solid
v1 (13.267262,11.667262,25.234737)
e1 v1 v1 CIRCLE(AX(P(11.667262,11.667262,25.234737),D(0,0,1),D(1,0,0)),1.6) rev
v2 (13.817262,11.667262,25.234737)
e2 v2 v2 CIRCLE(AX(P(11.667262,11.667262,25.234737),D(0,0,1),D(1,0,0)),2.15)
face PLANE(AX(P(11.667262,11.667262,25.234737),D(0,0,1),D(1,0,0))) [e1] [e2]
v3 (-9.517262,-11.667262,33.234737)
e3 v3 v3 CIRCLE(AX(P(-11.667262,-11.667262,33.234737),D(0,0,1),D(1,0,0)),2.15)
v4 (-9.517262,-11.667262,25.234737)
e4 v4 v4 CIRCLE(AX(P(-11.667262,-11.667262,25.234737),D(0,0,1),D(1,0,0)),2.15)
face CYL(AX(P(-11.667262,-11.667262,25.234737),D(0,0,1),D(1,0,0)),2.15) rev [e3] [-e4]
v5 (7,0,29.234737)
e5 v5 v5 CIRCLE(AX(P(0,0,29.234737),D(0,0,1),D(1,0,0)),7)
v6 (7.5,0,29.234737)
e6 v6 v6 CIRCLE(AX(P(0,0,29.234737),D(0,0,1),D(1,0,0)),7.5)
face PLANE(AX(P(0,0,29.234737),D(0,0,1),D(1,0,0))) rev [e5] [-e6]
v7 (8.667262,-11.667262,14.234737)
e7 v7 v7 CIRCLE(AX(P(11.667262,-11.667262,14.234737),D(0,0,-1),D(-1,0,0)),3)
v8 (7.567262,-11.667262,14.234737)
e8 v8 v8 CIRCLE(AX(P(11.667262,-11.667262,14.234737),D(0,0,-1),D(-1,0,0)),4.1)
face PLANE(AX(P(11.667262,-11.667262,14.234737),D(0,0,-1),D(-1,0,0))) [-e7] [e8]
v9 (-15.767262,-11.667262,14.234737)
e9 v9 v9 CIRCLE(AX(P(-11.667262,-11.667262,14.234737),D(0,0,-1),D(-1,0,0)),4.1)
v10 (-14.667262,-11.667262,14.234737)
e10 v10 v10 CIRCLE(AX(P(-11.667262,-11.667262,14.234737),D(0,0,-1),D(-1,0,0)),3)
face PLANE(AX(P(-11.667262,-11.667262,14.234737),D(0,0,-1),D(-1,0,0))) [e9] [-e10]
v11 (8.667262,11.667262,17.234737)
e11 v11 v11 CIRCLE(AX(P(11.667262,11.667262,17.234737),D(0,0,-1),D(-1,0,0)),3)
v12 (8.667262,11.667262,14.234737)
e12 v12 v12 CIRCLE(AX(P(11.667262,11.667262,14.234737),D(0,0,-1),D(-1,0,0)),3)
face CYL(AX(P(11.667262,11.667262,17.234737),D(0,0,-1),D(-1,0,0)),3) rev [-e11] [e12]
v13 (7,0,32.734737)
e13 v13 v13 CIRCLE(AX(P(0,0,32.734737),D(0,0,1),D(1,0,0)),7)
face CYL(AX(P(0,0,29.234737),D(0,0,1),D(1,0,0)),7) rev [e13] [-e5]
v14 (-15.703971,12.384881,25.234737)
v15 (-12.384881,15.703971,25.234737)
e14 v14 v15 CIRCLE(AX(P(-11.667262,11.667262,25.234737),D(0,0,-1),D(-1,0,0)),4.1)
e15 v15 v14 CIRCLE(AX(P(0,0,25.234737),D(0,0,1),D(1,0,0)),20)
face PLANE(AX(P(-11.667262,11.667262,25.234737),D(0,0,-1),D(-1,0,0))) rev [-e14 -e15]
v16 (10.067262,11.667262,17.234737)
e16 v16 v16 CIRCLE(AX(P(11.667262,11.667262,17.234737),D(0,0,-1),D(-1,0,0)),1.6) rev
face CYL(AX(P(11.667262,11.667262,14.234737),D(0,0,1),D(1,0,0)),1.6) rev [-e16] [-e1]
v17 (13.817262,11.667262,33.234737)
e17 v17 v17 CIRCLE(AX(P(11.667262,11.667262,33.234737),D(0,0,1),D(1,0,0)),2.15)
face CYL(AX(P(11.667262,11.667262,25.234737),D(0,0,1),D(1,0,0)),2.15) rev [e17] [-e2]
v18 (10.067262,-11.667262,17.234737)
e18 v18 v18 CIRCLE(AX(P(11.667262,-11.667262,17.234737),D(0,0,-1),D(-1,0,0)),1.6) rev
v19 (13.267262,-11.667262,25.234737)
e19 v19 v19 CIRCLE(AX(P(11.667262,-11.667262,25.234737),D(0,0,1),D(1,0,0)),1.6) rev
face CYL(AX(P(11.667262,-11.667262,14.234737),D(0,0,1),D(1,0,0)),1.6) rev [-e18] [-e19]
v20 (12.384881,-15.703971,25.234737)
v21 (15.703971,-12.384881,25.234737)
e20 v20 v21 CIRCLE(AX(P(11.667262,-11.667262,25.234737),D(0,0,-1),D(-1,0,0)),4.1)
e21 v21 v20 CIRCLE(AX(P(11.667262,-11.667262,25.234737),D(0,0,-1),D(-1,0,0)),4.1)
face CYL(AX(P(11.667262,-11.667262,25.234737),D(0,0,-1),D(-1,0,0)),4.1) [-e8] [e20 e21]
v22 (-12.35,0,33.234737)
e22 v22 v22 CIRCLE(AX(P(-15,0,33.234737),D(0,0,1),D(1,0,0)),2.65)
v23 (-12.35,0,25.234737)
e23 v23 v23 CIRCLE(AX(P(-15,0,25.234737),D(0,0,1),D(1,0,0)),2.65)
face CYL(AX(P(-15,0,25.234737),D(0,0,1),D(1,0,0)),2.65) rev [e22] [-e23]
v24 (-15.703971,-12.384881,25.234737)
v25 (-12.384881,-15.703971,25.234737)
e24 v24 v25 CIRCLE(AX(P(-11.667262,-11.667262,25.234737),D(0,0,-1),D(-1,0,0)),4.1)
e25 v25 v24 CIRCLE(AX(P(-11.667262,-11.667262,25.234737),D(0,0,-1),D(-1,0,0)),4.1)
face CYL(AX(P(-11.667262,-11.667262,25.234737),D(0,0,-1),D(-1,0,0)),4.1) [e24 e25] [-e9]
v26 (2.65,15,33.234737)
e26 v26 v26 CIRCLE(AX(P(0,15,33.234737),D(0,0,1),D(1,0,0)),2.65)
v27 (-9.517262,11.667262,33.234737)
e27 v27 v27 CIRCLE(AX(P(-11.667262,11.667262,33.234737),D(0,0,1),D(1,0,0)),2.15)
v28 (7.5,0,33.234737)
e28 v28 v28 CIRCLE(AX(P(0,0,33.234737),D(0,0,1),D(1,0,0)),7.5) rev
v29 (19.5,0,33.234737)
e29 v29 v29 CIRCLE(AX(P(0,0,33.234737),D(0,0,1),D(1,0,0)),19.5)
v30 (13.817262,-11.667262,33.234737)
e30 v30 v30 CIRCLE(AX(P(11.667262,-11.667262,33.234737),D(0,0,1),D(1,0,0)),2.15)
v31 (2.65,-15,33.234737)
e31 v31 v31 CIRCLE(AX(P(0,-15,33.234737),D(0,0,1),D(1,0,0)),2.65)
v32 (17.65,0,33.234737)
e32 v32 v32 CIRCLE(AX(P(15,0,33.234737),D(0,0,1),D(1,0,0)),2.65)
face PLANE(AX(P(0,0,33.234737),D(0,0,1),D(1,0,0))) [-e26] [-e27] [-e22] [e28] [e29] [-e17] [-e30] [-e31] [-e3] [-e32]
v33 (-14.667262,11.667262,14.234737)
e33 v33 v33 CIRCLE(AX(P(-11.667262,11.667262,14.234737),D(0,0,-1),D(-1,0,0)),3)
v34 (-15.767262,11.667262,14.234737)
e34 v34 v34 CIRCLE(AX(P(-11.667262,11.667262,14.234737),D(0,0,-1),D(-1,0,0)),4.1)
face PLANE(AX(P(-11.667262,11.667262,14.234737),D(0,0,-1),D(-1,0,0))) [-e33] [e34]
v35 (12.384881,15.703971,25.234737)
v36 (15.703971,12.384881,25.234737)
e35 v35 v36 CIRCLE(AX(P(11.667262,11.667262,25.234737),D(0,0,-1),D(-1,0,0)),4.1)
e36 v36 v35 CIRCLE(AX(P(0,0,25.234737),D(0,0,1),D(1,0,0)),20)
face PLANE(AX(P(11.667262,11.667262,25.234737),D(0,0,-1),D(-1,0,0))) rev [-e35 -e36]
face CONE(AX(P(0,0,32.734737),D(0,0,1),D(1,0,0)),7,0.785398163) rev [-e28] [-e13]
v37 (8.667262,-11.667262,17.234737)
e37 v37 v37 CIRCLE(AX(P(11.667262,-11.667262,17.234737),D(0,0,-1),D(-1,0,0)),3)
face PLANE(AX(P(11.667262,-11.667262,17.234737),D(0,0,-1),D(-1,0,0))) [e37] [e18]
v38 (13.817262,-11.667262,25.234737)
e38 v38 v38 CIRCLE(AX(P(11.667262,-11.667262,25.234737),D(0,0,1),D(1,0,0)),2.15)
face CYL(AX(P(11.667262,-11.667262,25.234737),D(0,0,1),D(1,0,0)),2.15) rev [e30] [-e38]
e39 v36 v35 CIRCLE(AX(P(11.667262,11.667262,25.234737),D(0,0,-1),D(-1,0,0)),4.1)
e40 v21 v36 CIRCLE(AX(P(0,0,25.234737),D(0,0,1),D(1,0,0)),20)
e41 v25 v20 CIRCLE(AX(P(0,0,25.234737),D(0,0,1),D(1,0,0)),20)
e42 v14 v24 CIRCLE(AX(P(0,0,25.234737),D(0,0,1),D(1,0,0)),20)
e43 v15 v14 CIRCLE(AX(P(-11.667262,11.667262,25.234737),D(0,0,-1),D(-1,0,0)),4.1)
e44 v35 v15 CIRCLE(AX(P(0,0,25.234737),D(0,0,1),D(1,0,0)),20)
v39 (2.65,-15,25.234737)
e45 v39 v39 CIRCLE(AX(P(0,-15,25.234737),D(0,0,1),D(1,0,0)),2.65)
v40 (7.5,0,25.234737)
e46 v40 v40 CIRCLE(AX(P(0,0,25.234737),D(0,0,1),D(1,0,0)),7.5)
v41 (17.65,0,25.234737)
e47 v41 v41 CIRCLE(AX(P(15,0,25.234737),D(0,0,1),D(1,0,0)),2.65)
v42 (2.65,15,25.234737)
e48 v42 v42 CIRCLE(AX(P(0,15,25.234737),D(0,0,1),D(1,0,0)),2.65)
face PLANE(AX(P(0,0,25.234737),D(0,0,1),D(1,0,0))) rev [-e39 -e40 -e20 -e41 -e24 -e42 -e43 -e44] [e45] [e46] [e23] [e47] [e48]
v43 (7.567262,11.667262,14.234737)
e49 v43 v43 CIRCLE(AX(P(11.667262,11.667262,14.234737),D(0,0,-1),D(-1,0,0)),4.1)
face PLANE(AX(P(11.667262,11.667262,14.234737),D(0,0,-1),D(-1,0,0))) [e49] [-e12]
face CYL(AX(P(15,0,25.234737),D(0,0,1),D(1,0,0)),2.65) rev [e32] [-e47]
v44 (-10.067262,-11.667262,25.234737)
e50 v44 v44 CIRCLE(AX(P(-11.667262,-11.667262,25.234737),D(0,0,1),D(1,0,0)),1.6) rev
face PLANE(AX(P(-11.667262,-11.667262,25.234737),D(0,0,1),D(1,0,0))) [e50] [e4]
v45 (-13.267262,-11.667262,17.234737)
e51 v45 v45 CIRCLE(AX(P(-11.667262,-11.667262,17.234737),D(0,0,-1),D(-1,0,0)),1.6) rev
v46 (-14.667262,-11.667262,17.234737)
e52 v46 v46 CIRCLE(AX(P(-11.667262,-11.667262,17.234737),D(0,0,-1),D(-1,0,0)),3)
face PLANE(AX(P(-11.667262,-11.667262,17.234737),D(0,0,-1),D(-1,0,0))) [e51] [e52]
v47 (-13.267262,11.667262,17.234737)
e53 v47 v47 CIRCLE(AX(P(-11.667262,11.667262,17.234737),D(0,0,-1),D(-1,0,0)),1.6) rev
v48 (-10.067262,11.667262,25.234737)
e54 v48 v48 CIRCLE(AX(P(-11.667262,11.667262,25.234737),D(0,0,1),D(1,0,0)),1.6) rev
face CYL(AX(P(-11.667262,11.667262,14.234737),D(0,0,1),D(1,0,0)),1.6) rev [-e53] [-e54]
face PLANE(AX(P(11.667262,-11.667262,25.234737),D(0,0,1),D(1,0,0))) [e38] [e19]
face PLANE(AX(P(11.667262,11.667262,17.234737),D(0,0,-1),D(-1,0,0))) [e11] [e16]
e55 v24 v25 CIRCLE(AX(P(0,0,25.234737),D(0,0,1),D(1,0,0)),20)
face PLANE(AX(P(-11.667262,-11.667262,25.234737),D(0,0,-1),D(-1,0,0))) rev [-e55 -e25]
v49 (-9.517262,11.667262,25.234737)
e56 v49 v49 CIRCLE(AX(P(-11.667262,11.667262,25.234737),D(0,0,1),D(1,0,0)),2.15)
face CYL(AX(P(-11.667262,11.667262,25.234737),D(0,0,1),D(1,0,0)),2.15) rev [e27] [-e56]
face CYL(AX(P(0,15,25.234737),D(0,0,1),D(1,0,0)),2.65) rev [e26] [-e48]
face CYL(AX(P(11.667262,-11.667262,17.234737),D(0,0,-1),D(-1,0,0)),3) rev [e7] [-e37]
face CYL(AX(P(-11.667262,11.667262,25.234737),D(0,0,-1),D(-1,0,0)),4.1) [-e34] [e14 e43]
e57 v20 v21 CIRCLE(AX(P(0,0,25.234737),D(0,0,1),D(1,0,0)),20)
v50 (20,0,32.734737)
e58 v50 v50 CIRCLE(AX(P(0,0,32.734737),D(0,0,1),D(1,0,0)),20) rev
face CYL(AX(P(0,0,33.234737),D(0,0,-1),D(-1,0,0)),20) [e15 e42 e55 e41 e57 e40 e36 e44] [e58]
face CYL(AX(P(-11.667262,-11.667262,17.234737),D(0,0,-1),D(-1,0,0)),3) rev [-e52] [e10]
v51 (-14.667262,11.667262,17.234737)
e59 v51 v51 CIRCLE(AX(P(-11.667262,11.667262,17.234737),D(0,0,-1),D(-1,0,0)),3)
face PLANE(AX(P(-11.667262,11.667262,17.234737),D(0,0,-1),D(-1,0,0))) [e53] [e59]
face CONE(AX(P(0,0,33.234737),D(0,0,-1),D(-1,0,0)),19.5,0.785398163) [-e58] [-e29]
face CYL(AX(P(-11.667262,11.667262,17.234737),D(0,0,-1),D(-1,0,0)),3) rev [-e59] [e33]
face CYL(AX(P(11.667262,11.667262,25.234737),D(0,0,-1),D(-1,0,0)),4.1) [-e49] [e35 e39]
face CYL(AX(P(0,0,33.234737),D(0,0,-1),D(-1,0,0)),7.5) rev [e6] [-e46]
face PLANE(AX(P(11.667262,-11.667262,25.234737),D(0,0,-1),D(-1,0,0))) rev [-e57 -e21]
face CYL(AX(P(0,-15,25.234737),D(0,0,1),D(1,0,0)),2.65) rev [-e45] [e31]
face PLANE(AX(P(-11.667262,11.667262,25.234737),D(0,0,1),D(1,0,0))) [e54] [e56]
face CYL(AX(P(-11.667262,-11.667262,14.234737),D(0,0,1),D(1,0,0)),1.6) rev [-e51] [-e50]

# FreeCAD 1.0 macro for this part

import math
import FreeCAD as App
import Part
import Sketcher
Q = App.Units.Quantity


def edges_at(feature, points):
    """Names of the edges that pass closest to the given points."""
    edges = feature.Shape.Edges
    near = lambda p: min(range(len(edges)), key=lambda i: edges[i].distToShape(Part.Vertex(*p))[0])
    return sorted({f"Edge{near(p) + 1}" for p in points})

doc = App.newDocument("Part")
body = doc.addObject("PartDesign::Body", "Body")

sketch1 = body.newObject("Sketcher::SketchObject", "Sketch")
sketch1.AttachmentSupport = (doc.getObject("XY_Plane"), [""])
sketch1.MapMode = "FlatFace"
sketch1.AttachmentOffset = App.Placement(App.Vector(0, 0, 25.234737), App.Rotation())
sketch1.addGeometry(Part.Circle(App.Vector(11.667262, 11.667262, 0), App.Vector(0, 0, 1), 4), False)
sketch1.addConstraint(Sketcher.Constraint("Diameter", 0, Q("8 mm")))
sketch1.addConstraint(Sketcher.Constraint("DistanceX", -1, 1, 0, 3, Q("11.667262 mm")))
sketch1.addConstraint(Sketcher.Constraint("DistanceY", -1, 1, 0, 3, Q("11.667262 mm")))
pad1 = body.newObject("PartDesign::Pad", "Pad")
pad1.Profile = sketch1
pad1.Length = 11
pad1.Reversed = True
body2 = doc.addObject("PartDesign::Body", "Body001")

sketch2 = body2.newObject("Sketcher::SketchObject", "Sketch001")
sketch2.AttachmentSupport = (doc.getObject("XY_Plane001"), [""])
sketch2.MapMode = "FlatFace"
sketch2.AttachmentOffset = App.Placement(App.Vector(0, 0, 25.234737), App.Rotation())
sketch2.addGeometry(Part.Circle(App.Vector(-11.667262, 11.667262, 0), App.Vector(0, 0, 1), 4), False)
sketch2.addConstraint(Sketcher.Constraint("Diameter", 0, Q("8 mm")))
sketch2.addConstraint(Sketcher.Constraint("DistanceX", 0, 3, -1, 1, Q("11.667262 mm")))
sketch2.addConstraint(Sketcher.Constraint("DistanceY", -1, 1, 0, 3, Q("11.667262 mm")))
pad2 = body2.newObject("PartDesign::Pad", "Pad001")
pad2.Profile = sketch2
pad2.Length = 11
pad2.Reversed = True
body3 = doc.addObject("PartDesign::Body", "Body002")

sketch3 = body3.newObject("Sketcher::SketchObject", "Sketch002")
sketch3.AttachmentSupport = (doc.getObject("XY_Plane002"), [""])
sketch3.MapMode = "FlatFace"
sketch3.AttachmentOffset = App.Placement(App.Vector(0, 0, 25.234737), App.Rotation())
sketch3.addGeometry(Part.Circle(App.Vector(-11.667262, -11.667262, 0), App.Vector(0, 0, 1), 4), False)
sketch3.addConstraint(Sketcher.Constraint("Diameter", 0, Q("8 mm")))
sketch3.addConstraint(Sketcher.Constraint("DistanceX", 0, 3, -1, 1, Q("11.667262 mm")))
sketch3.addConstraint(Sketcher.Constraint("DistanceY", 0, 3, -1, 1, Q("11.667262 mm")))
pad3 = body3.newObject("PartDesign::Pad", "Pad002")
pad3.Profile = sketch3
pad3.Length = 11
pad3.Reversed = True
body4 = doc.addObject("PartDesign::Body", "Body003")

sketch4 = body4.newObject("Sketcher::SketchObject", "Sketch003")
sketch4.AttachmentSupport = (doc.getObject("XY_Plane003"), [""])
sketch4.MapMode = "FlatFace"
sketch4.AttachmentOffset = App.Placement(App.Vector(0, 0, 25.234737), App.Rotation())
sketch4.addGeometry(Part.Circle(App.Vector(11.667262, -11.667262, 0), App.Vector(0, 0, 1), 4), False)
sketch4.addConstraint(Sketcher.Constraint("Diameter", 0, Q("8 mm")))
sketch4.addConstraint(Sketcher.Constraint("DistanceX", -1, 1, 0, 3, Q("11.667262 mm")))
sketch4.addConstraint(Sketcher.Constraint("DistanceY", 0, 3, -1, 1, Q("11.667262 mm")))
pad4 = body4.newObject("PartDesign::Pad", "Pad003")
pad4.Profile = sketch4
pad4.Length = 11
pad4.Reversed = True
body.AllowCompound = True
doc.recompute()

boolean = body.newObject("PartDesign::Boolean", "Boolean")
boolean.Type = "Fuse"
boolean.addObjects([body2])
doc.recompute()

boolean2 = body.newObject("PartDesign::Boolean", "Boolean001")
boolean2.Type = "Fuse"
boolean2.addObjects([body3])
doc.recompute()

boolean3 = body.newObject("PartDesign::Boolean", "Boolean002")
boolean3.Type = "Fuse"
boolean3.addObjects([body4])

sketch5 = body.newObject("Sketcher::SketchObject", "Sketch004")
sketch5.AttachmentSupport = (doc.getObject("XY_Plane"), [""])
sketch5.MapMode = "FlatFace"
sketch5.AttachmentOffset = App.Placement(App.Vector(0, 0, 25.234737), App.Rotation())
sketch5.addGeometry(Part.ArcOfCircle(Part.Circle(App.Vector(0, 0, 0), App.Vector(0, 0, 1), 20), math.radians(-32.283976), math.radians(57.716024)), False)
sketch5.addGeometry(Part.ArcOfCircle(Part.Circle(App.Vector(0, 0, 0), App.Vector(0, 0, 1), 20), math.radians(57.716024), math.radians(147.716024)), False)
sketch5.addGeometry(Part.ArcOfCircle(Part.Circle(App.Vector(0, 0, 0), App.Vector(0, 0, 1), 20), math.radians(147.716024), math.radians(237.716024)), False)
sketch5.addGeometry(Part.ArcOfCircle(Part.Circle(App.Vector(0, 0, 0), App.Vector(0, 0, 1), 20), math.radians(-122.283976), math.radians(-32.283976)), False)
sketch5.addGeometry(Part.Circle(App.Vector(0, 0, 0), App.Vector(0, 0, 1), 7.5), False)
sketch5.addConstraint(Sketcher.Constraint("Tangent", 0, 2, 1, 1))
sketch5.addConstraint(Sketcher.Constraint("Tangent", 1, 2, 2, 1))
sketch5.addConstraint(Sketcher.Constraint("Tangent", 2, 2, 3, 1))
sketch5.addConstraint(Sketcher.Constraint("Tangent", 3, 2, 0, 1))
sketch5.addConstraint(Sketcher.Constraint("Coincident", 0, 3, -1, 1))
sketch5.addConstraint(Sketcher.Constraint("Coincident", 4, 3, -1, 1))
sketch5.addConstraint(Sketcher.Constraint("Equal", 0, 1))
sketch5.addConstraint(Sketcher.Constraint("Diameter", 4, Q("15 mm")))
sketch5.addConstraint(Sketcher.Constraint("Radius", 0, Q("20 mm")))
sketch5.addConstraint(Sketcher.Constraint("DistanceX", -1, 1, 0, 2, Q("10.682319 mm")))
sketch5.addConstraint(Sketcher.Constraint("DistanceY", -1, 1, 1, 2, Q("10.682319 mm")))
sketch5.addConstraint(Sketcher.Constraint("DistanceX", 2, 2, -1, 1, Q("10.682319 mm")))
sketch5.addConstraint(Sketcher.Constraint("DistanceY", 3, 2, -1, 1, Q("10.682319 mm")))
pad5 = body.newObject("PartDesign::Pad", "Pad004")
pad5.Profile = sketch5
pad5.Length = 8

sketch6 = body.newObject("Sketcher::SketchObject", "Sketch005")
sketch6.AttachmentSupport = (doc.getObject("XY_Plane"), [""])
sketch6.MapMode = "FlatFace"
sketch6.AttachmentOffset = App.Placement(App.Vector(0, 0, 33.234737), App.Rotation())
sketch6.addGeometry(Part.Circle(App.Vector(11.667262, 11.667262, 0), App.Vector(0, 0, 1), 1.6), False)
sketch6.addGeometry(Part.Circle(App.Vector(11.667262, -11.667262, 0), App.Vector(0, 0, 1), 1.6), False)
sketch6.addGeometry(Part.Circle(App.Vector(-11.667262, -11.667262, 0), App.Vector(0, 0, 1), 1.6), False)
sketch6.addGeometry(Part.Circle(App.Vector(-11.667262, 11.667262, 0), App.Vector(0, 0, 1), 1.6), False)
sketch6.addConstraint(Sketcher.Constraint("Equal", 0, 1))
sketch6.addConstraint(Sketcher.Constraint("Equal", 1, 2))
sketch6.addConstraint(Sketcher.Constraint("Equal", 2, 3))
sketch6.addConstraint(Sketcher.Constraint("Symmetric", 0, 3, 2, 3, -1, 1))
sketch6.addConstraint(Sketcher.Constraint("Symmetric", 1, 3, 3, 3, -1, 1))
sketch6.addConstraint(Sketcher.Constraint("Symmetric", 1, 3, 2, 3, -2))
sketch6.addConstraint(Sketcher.Constraint("Diameter", 0, Q("3.2 mm")))
sketch6.addConstraint(Sketcher.Constraint("DistanceX", -1, 1, 0, 3, Q("11.667262 mm")))
sketch6.addConstraint(Sketcher.Constraint("DistanceY", -1, 1, 0, 3, Q("11.667262 mm")))
pocket1 = body.newObject("PartDesign::Pocket", "Pocket")
pocket1.Profile = sketch6
pocket1.Type = "ThroughAll"

sketch7 = body.newObject("Sketcher::SketchObject", "Sketch006")
sketch7.AttachmentSupport = (doc.getObject("XY_Plane"), [""])
sketch7.MapMode = "FlatFace"
sketch7.AttachmentOffset = App.Placement(App.Vector(0, 0, 14.234737), App.Rotation())
sketch7.addGeometry(Part.Circle(App.Vector(11.667262, 11.667262, 0), App.Vector(0, 0, 1), 3), False)
sketch7.addGeometry(Part.Circle(App.Vector(11.667262, -11.667262, 0), App.Vector(0, 0, 1), 3), False)
sketch7.addGeometry(Part.Circle(App.Vector(-11.667262, -11.667262, 0), App.Vector(0, 0, 1), 3), False)
sketch7.addGeometry(Part.Circle(App.Vector(-11.667262, 11.667262, 0), App.Vector(0, 0, 1), 3), False)
sketch7.addConstraint(Sketcher.Constraint("Equal", 0, 1))
sketch7.addConstraint(Sketcher.Constraint("Equal", 1, 2))
sketch7.addConstraint(Sketcher.Constraint("Equal", 2, 3))
sketch7.addConstraint(Sketcher.Constraint("Symmetric", 0, 3, 2, 3, -1, 1))
sketch7.addConstraint(Sketcher.Constraint("Symmetric", 1, 3, 3, 3, -1, 1))
sketch7.addConstraint(Sketcher.Constraint("Symmetric", 1, 3, 2, 3, -2))
sketch7.addConstraint(Sketcher.Constraint("Diameter", 0, Q("6 mm")))
sketch7.addConstraint(Sketcher.Constraint("DistanceX", -1, 1, 0, 3, Q("11.667262 mm")))
sketch7.addConstraint(Sketcher.Constraint("DistanceY", -1, 1, 0, 3, Q("11.667262 mm")))
pocket2 = body.newObject("PartDesign::Pocket", "Pocket001")
pocket2.Profile = sketch7
pocket2.Length = 3
pocket2.Reversed = True

sketch8 = body.newObject("Sketcher::SketchObject", "Sketch007")
sketch8.AttachmentSupport = (doc.getObject("XY_Plane"), [""])
sketch8.MapMode = "FlatFace"
sketch8.AttachmentOffset = App.Placement(App.Vector(0, 0, 25.234737), App.Rotation())
sketch8.addGeometry(Part.Circle(App.Vector(-11.667262, 11.667262, 0), App.Vector(0, 0, 1), 4.1), False)
sketch8.addGeometry(Part.Circle(App.Vector(-11.667262, 11.667262, 0), App.Vector(0, 0, 1), 4), False)
sketch8.addGeometry(Part.Circle(App.Vector(-11.667262, -11.667262, 0), App.Vector(0, 0, 1), 4.1), False)
sketch8.addGeometry(Part.Circle(App.Vector(-11.667262, -11.667262, 0), App.Vector(0, 0, 1), 4), False)
sketch8.addGeometry(Part.Circle(App.Vector(11.667262, -11.667262, 0), App.Vector(0, 0, 1), 4.1), False)
sketch8.addGeometry(Part.Circle(App.Vector(11.667262, -11.667262, 0), App.Vector(0, 0, 1), 4), False)
sketch8.addGeometry(Part.Circle(App.Vector(11.667262, 11.667262, 0), App.Vector(0, 0, 1), 4.1), False)
sketch8.addGeometry(Part.Circle(App.Vector(11.667262, 11.667262, 0), App.Vector(0, 0, 1), 4), False)
sketch8.addConstraint(Sketcher.Constraint("Coincident", 1, 3, 0, 3))
sketch8.addConstraint(Sketcher.Constraint("Coincident", 3, 3, 2, 3))
sketch8.addConstraint(Sketcher.Constraint("Coincident", 5, 3, 4, 3))
sketch8.addConstraint(Sketcher.Constraint("Coincident", 7, 3, 6, 3))
sketch8.addConstraint(Sketcher.Constraint("Equal", 0, 2))
sketch8.addConstraint(Sketcher.Constraint("Equal", 1, 3))
sketch8.addConstraint(Sketcher.Constraint("Equal", 2, 4))
sketch8.addConstraint(Sketcher.Constraint("Equal", 3, 5))
sketch8.addConstraint(Sketcher.Constraint("Equal", 4, 6))
sketch8.addConstraint(Sketcher.Constraint("Equal", 5, 7))
sketch8.addConstraint(Sketcher.Constraint("Symmetric", 0, 3, 4, 3, -1, 1))
sketch8.addConstraint(Sketcher.Constraint("Symmetric", 2, 3, 6, 3, -1, 1))
sketch8.addConstraint(Sketcher.Constraint("Symmetric", 2, 3, 4, 3, -2))
sketch8.addConstraint(Sketcher.Constraint("Diameter", 1, Q("8 mm")))
sketch8.addConstraint(Sketcher.Constraint("Diameter", 0, Q("8.2 mm")))
sketch8.addConstraint(Sketcher.Constraint("DistanceX", 0, 3, -1, 1, Q("11.667262 mm")))
sketch8.addConstraint(Sketcher.Constraint("DistanceY", -1, 1, 0, 3, Q("11.667262 mm")))
pad6 = body.newObject("PartDesign::Pad", "Pad005")
pad6.Profile = sketch8
pad6.Length = 11
pad6.Reversed = True

sketch9 = body.newObject("Sketcher::SketchObject", "Sketch008")
sketch9.AttachmentSupport = (doc.getObject("XY_Plane"), [""])
sketch9.MapMode = "FlatFace"
sketch9.AttachmentOffset = App.Placement(App.Vector(0, 0, 33.234737), App.Rotation())
sketch9.addGeometry(Part.Circle(App.Vector(0, 15, 0), App.Vector(0, 0, 1), 2.65), False)
sketch9.addGeometry(Part.Circle(App.Vector(15, 0, 0), App.Vector(0, 0, 1), 2.65), False)
sketch9.addGeometry(Part.Circle(App.Vector(0, -15, 0), App.Vector(0, 0, 1), 2.65), False)
sketch9.addGeometry(Part.Circle(App.Vector(-15, 0, 0), App.Vector(0, 0, 1), 2.65), False)
sketch9.addGeometry(Part.Circle(App.Vector(-11.667262, 11.667262, 0), App.Vector(0, 0, 1), 2.15), False)
sketch9.addGeometry(Part.Circle(App.Vector(11.667262, 11.667262, 0), App.Vector(0, 0, 1), 2.15), False)
sketch9.addGeometry(Part.Circle(App.Vector(11.667262, -11.667262, 0), App.Vector(0, 0, 1), 2.15), False)
sketch9.addGeometry(Part.Circle(App.Vector(-11.667262, -11.667262, 0), App.Vector(0, 0, 1), 2.15), False)
sketch9.addConstraint(Sketcher.Constraint("Equal", 0, 1))
sketch9.addConstraint(Sketcher.Constraint("Equal", 1, 2))
sketch9.addConstraint(Sketcher.Constraint("Equal", 2, 3))
sketch9.addConstraint(Sketcher.Constraint("Equal", 4, 5))
sketch9.addConstraint(Sketcher.Constraint("Equal", 5, 6))
sketch9.addConstraint(Sketcher.Constraint("Equal", 6, 7))
sketch9.addConstraint(Sketcher.Constraint("Symmetric", 0, 3, 2, 3, -1, 1))
sketch9.addConstraint(Sketcher.Constraint("Symmetric", 1, 3, 3, 3, -1, 1))
sketch9.addConstraint(Sketcher.Constraint("Symmetric", 4, 3, 6, 3, -1, 1))
sketch9.addConstraint(Sketcher.Constraint("Symmetric", 5, 3, 7, 3, -1, 1))
sketch9.addConstraint(Sketcher.Constraint("Symmetric", 4, 3, 5, 3, -2))
sketch9.addConstraint(Sketcher.Constraint("PointOnObject", 0, 3, -2))
sketch9.addConstraint(Sketcher.Constraint("PointOnObject", 1, 3, -1))
sketch9.addConstraint(Sketcher.Constraint("Diameter", 0, Q("5.3 mm")))
sketch9.addConstraint(Sketcher.Constraint("Diameter", 4, Q("4.3 mm")))
sketch9.addConstraint(Sketcher.Constraint("DistanceY", -1, 1, 0, 3, Q("15 mm")))
sketch9.addConstraint(Sketcher.Constraint("DistanceX", -1, 1, 1, 3, Q("15 mm")))
sketch9.addConstraint(Sketcher.Constraint("DistanceX", 4, 3, -1, 1, Q("11.667262 mm")))
sketch9.addConstraint(Sketcher.Constraint("DistanceY", -1, 1, 4, 3, Q("11.667262 mm")))
pocket3 = body.newObject("PartDesign::Pocket", "Pocket002")
pocket3.Profile = sketch9
pocket3.Length = 8

sketch10 = body.newObject("Sketcher::SketchObject", "Sketch009")
sketch10.AttachmentSupport = (doc.getObject("XY_Plane"), [""])
sketch10.MapMode = "FlatFace"
sketch10.AttachmentOffset = App.Placement(App.Vector(0, 0, 29.234737), App.Rotation())
sketch10.addGeometry(Part.Circle(App.Vector(0, 0, 0), App.Vector(0, 0, 1), 7.5), False)
sketch10.addGeometry(Part.Circle(App.Vector(0, 0, 0), App.Vector(0, 0, 1), 7), False)
sketch10.addConstraint(Sketcher.Constraint("Coincident", 0, 3, -1, 1))
sketch10.addConstraint(Sketcher.Constraint("Coincident", 1, 3, -1, 1))
sketch10.addConstraint(Sketcher.Constraint("Diameter", 0, Q("15 mm")))
sketch10.addConstraint(Sketcher.Constraint("Diameter", 1, Q("14 mm")))
pad7 = body.newObject("PartDesign::Pad", "Pad006")
pad7.Profile = sketch10
pad7.Length = 4
doc.recompute()

chamfer = body.newObject("PartDesign::Chamfer", "Chamfer")
chamfer.Base = (pad7, edges_at(pad7, [(-4.402, 19.509, 33.235), (-7, 0, 33.235)]))
chamfer.Size = 0.5

doc.recompute()
